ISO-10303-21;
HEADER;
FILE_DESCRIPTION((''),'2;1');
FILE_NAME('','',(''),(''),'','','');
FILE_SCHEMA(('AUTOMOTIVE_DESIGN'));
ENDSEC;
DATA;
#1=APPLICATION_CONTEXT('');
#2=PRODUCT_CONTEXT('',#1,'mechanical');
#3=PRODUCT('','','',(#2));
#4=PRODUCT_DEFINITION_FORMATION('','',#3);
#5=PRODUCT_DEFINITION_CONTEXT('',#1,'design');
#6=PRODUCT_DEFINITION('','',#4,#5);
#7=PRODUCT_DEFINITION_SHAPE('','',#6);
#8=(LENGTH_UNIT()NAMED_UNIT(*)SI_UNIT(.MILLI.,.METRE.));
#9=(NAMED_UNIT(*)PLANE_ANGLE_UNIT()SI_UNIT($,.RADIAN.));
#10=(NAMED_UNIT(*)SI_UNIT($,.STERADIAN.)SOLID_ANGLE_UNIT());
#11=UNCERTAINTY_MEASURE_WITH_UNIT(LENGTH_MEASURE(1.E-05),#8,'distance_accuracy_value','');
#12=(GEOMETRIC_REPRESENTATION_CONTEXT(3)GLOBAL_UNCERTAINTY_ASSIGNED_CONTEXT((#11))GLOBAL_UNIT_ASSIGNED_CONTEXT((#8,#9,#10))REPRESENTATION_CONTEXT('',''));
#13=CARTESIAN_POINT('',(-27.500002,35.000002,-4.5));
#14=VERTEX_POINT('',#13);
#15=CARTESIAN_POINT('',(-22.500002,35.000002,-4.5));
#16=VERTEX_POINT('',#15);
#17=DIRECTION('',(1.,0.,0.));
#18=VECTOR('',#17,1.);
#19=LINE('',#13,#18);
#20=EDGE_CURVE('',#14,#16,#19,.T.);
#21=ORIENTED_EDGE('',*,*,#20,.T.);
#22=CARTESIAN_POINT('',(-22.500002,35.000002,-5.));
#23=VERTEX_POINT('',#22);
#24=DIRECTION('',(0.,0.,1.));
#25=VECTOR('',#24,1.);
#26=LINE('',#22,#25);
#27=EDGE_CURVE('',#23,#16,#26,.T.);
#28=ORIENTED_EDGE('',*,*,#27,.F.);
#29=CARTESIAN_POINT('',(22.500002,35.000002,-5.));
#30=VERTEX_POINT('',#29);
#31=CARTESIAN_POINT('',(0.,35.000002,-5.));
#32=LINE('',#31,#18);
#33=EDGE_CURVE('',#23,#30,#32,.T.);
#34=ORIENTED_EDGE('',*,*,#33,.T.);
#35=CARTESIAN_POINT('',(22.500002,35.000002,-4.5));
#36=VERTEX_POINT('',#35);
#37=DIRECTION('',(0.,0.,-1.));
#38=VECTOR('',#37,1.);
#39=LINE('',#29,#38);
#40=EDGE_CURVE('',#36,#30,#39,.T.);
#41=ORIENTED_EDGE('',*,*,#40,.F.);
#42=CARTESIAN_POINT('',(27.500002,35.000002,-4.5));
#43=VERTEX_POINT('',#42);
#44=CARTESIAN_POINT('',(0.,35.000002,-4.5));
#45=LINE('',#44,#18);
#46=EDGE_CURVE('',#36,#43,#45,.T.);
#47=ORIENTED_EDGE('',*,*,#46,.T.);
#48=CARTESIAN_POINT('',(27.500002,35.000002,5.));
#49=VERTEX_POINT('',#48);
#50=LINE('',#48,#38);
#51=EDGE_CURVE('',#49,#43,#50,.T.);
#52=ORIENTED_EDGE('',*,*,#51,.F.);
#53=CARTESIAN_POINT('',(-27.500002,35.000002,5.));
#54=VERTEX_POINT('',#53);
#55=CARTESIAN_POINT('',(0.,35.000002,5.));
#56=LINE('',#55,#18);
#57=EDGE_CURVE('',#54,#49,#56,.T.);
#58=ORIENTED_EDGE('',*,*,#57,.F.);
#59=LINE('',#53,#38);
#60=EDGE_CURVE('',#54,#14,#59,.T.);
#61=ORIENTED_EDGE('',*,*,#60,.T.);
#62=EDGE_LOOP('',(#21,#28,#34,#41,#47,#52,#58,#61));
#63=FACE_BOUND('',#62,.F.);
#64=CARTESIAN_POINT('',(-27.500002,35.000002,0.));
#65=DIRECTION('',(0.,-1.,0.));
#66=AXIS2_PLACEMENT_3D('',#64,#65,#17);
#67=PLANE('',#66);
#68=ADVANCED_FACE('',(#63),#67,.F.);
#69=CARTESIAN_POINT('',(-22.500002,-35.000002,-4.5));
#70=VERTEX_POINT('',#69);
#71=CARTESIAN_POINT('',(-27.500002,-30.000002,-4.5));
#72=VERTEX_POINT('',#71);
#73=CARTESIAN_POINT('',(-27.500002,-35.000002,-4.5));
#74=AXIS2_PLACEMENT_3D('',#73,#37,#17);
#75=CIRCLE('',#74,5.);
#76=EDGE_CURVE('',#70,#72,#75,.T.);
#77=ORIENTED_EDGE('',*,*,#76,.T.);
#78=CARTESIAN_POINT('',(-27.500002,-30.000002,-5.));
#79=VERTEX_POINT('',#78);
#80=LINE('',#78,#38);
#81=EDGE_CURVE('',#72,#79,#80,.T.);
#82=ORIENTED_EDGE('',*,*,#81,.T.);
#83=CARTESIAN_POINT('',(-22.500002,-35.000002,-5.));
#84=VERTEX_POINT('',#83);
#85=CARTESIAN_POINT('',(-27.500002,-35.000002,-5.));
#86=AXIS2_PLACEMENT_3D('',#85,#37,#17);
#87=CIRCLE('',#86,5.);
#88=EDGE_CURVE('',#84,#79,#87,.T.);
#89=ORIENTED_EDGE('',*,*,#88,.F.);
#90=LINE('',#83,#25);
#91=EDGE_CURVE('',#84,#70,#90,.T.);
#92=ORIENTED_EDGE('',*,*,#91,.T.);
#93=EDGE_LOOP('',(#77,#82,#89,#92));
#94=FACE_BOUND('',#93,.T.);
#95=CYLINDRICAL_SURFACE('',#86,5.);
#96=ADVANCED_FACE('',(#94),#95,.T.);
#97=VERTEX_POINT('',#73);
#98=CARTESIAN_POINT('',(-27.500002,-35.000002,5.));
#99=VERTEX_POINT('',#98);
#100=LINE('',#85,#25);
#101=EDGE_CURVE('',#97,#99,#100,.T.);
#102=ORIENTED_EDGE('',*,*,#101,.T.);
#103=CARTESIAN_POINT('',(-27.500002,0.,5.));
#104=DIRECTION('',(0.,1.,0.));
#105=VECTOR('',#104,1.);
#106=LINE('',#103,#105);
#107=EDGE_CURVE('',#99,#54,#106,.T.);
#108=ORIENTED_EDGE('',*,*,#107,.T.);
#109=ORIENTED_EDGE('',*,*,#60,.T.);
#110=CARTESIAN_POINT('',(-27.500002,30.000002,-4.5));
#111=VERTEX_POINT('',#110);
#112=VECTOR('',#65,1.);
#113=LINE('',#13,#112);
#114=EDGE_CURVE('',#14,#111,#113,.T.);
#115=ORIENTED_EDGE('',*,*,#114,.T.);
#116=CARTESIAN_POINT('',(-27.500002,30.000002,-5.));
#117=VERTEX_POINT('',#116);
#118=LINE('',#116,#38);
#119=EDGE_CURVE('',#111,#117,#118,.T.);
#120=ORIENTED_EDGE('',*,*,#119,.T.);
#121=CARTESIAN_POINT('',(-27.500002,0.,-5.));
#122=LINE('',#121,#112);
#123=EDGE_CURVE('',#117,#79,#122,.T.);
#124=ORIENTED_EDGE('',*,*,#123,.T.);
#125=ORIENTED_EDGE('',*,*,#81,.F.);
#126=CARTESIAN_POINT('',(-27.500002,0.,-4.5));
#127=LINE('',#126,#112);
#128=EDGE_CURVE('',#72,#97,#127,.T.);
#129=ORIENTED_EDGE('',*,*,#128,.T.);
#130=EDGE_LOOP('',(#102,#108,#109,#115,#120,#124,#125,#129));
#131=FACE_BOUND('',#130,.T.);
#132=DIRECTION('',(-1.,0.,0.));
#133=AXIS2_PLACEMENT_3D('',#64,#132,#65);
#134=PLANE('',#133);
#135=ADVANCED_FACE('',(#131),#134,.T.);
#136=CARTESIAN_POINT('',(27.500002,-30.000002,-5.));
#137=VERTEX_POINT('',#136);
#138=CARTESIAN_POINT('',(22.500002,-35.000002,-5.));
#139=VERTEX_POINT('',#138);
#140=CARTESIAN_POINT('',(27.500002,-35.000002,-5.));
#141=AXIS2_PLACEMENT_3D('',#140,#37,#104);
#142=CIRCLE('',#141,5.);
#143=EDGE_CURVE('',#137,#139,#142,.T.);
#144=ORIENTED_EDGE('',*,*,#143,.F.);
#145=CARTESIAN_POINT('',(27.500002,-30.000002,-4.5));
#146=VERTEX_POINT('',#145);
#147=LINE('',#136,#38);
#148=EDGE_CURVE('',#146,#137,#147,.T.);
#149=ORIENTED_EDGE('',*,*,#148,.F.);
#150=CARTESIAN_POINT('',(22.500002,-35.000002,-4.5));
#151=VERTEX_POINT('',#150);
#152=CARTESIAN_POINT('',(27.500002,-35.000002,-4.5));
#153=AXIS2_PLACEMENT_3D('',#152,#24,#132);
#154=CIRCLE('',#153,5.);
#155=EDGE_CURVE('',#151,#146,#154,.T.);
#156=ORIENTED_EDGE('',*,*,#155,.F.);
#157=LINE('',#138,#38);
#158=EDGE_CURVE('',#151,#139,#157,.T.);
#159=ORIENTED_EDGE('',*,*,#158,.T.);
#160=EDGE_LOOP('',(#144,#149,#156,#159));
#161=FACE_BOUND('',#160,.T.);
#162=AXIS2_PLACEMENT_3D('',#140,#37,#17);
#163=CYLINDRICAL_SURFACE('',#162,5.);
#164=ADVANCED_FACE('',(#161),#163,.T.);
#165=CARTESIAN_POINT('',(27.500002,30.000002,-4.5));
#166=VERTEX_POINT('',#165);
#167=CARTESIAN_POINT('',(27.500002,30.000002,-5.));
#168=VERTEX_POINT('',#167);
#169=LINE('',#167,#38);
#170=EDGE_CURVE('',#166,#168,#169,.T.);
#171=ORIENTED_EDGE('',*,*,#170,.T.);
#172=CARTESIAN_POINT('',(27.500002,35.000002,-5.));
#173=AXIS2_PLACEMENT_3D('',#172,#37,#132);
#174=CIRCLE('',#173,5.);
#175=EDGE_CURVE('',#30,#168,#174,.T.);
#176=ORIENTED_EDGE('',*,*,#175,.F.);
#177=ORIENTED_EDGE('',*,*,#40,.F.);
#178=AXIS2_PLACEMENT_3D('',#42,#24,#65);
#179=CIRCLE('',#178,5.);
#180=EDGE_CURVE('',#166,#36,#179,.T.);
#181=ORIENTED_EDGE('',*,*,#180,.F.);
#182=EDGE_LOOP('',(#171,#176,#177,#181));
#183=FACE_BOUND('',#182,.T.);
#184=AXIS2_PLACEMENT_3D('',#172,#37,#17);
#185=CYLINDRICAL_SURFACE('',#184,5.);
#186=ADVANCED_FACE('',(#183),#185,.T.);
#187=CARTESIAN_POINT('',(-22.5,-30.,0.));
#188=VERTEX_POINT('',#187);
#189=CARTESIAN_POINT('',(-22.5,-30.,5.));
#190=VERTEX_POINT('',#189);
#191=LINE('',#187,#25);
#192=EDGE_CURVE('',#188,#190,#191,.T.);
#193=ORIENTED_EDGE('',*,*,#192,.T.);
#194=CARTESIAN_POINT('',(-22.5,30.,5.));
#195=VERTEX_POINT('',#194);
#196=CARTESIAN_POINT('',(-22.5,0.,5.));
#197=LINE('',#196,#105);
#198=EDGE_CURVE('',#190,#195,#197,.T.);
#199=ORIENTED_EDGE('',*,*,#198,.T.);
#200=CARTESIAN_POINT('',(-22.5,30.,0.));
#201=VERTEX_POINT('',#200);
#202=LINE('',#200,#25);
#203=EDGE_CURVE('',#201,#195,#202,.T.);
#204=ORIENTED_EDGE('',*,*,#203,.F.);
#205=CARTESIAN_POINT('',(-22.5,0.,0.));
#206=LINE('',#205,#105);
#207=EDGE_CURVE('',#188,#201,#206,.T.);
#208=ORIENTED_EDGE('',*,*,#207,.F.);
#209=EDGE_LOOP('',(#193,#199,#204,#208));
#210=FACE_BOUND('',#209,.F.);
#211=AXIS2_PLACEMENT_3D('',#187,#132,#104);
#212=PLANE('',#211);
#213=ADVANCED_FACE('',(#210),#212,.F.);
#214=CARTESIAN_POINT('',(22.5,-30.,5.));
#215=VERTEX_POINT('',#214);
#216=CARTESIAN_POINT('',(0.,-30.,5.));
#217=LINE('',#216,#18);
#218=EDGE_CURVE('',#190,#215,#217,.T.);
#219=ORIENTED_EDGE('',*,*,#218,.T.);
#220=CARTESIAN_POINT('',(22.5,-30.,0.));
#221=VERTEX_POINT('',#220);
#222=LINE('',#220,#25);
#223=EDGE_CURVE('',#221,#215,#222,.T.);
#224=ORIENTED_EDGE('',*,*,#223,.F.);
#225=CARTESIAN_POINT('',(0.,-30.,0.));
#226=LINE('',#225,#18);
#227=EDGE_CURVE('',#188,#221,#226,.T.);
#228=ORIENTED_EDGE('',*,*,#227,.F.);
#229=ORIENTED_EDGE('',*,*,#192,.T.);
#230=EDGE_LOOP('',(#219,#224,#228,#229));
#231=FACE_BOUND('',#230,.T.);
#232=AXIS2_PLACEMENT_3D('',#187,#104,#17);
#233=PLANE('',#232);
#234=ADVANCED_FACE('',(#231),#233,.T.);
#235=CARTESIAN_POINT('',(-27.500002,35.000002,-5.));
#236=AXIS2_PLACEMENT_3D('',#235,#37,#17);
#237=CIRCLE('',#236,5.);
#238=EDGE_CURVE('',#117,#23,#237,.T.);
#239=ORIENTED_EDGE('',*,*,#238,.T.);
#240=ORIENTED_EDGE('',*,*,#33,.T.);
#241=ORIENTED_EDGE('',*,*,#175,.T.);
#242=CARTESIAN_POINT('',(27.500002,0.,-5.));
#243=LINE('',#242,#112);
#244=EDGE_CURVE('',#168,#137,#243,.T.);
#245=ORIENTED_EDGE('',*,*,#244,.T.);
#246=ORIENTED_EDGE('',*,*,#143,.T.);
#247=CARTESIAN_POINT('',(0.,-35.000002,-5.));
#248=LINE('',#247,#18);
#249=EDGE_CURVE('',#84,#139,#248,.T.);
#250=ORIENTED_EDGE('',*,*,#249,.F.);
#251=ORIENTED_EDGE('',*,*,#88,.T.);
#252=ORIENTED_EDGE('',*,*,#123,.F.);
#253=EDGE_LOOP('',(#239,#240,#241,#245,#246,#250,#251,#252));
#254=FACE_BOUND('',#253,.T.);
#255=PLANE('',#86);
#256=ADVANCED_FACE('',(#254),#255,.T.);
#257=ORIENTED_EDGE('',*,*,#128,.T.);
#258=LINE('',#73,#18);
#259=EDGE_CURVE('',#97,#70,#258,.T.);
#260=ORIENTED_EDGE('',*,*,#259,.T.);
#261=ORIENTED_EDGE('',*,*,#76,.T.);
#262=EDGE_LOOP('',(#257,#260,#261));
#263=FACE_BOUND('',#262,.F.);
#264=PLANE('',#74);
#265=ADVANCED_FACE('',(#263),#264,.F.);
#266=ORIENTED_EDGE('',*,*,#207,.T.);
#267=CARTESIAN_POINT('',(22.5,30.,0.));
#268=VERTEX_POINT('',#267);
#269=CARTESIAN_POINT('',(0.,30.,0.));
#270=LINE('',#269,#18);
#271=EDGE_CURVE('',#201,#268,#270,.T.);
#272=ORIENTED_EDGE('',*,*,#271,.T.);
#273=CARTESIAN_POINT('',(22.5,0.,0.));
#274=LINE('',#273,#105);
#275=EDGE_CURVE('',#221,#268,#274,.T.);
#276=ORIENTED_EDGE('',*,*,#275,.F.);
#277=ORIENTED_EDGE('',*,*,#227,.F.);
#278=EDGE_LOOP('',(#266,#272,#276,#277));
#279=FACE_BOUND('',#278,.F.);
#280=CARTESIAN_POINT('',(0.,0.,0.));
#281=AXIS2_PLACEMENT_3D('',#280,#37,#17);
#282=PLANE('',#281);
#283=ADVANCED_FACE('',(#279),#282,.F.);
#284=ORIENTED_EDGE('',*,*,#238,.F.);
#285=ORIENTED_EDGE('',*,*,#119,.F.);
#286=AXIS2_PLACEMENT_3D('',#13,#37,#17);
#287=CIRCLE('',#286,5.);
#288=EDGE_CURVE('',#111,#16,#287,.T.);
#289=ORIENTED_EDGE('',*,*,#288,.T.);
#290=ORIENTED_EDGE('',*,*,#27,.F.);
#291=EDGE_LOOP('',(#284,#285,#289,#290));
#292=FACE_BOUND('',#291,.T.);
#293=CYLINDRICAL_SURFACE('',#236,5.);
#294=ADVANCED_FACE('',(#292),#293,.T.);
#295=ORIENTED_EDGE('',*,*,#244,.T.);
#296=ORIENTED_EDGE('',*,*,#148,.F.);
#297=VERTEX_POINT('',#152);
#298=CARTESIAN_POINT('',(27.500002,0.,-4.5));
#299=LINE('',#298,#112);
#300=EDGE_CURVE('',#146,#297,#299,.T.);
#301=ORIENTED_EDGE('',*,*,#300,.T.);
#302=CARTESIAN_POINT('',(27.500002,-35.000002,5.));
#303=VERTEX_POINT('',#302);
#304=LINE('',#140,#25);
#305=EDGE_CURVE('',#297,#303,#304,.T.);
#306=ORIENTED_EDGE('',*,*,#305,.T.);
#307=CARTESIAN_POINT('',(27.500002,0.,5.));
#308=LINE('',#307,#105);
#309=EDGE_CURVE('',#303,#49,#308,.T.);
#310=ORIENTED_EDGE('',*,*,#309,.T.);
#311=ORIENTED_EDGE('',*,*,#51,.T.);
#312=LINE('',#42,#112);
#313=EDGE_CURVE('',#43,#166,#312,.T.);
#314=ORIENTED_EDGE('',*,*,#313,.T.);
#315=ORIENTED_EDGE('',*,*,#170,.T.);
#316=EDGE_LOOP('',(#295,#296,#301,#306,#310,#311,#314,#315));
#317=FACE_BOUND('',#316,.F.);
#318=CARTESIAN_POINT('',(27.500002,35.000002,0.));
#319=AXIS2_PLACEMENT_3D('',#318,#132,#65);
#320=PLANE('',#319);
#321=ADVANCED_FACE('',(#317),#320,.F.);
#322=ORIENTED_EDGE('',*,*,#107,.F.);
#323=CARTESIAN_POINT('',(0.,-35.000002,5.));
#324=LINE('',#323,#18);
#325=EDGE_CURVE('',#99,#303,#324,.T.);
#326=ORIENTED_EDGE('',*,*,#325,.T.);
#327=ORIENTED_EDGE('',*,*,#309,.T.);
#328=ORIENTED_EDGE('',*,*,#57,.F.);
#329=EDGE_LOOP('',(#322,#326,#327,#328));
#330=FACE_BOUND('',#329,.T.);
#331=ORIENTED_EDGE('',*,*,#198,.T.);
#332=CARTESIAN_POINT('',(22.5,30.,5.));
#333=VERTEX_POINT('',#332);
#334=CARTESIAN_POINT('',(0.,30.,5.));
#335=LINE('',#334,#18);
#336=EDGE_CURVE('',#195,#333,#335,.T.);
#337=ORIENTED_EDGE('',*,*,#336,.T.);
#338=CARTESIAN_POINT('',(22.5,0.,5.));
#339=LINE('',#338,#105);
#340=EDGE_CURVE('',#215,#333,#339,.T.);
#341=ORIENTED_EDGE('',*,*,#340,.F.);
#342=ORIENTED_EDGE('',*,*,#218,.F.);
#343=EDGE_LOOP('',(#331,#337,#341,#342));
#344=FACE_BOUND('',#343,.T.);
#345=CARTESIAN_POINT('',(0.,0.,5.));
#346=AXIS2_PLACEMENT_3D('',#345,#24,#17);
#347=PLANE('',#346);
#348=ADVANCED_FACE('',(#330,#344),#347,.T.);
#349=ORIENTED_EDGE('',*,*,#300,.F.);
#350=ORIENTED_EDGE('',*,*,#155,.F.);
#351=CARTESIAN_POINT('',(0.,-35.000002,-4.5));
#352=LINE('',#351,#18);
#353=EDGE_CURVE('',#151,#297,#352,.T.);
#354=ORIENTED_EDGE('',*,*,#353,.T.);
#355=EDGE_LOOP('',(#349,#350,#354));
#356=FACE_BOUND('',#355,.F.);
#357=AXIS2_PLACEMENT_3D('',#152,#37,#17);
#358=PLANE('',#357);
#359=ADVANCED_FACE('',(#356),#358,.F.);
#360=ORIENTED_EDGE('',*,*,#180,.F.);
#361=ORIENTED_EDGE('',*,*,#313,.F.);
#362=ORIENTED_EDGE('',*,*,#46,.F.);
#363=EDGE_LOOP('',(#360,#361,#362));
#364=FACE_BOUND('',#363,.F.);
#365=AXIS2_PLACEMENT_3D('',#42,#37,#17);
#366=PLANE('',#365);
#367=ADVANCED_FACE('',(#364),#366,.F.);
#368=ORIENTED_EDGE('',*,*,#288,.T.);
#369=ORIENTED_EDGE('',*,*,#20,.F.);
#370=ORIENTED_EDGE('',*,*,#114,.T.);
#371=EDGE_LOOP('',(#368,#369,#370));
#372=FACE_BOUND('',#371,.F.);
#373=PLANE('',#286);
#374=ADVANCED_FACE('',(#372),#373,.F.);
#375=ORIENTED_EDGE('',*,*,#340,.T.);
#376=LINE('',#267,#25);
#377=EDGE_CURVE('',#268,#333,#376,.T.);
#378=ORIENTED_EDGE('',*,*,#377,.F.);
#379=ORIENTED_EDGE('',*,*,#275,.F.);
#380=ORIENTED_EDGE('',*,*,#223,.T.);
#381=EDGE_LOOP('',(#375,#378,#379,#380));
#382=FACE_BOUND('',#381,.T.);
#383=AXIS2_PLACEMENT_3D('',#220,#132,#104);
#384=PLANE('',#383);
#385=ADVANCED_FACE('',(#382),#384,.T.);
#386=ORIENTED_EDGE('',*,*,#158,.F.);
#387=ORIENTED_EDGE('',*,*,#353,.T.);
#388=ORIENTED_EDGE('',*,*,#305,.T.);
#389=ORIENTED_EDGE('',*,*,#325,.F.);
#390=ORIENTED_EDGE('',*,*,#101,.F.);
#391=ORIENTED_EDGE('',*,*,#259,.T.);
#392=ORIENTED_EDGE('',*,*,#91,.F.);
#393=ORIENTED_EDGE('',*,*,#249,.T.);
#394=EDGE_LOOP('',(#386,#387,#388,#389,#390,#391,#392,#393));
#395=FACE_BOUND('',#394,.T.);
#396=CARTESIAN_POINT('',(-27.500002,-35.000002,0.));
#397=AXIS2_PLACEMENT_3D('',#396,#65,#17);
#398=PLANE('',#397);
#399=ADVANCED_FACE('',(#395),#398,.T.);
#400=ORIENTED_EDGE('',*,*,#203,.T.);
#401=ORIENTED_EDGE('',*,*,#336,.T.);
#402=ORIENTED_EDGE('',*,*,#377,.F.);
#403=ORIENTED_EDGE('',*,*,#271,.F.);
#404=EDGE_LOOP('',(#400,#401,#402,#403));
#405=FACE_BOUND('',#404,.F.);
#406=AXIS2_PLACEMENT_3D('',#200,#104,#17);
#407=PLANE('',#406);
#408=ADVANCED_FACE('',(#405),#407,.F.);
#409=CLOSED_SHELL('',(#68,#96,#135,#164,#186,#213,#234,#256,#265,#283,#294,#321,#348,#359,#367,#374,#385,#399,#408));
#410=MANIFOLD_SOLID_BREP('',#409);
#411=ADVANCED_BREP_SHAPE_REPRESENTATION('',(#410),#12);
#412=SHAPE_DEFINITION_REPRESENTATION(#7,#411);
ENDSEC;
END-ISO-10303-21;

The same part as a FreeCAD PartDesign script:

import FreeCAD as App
import Part
import Sketcher

V = App.Vector
Q = App.Units.Quantity

doc = App.newDocument("Part")
body = doc.addObject("PartDesign::Body", "Body")

sketch1 = doc.addObject("Sketcher::SketchObject", "Sketch")
body.addObject(sketch1)
sketch1.AttachmentSupport = (doc.XY_Plane, [""])
sketch1.MapMode = "FlatFace"
sketch1.addGeometry(Part.LineSegment(V(-27.500002, 35.000002, 0), V(-27.500002, -35.000002, 0)), False)
sketch1.addGeometry(Part.LineSegment(V(-27.500002, -35.000002, 0), V(27.500002, -35.000002, 0)), False)
sketch1.addGeometry(Part.LineSegment(V(27.500002, -35.000002, 0), V(27.500002, 35.000002, 0)), False)
sketch1.addGeometry(Part.LineSegment(V(27.500002, 35.000002, 0), V(-27.500002, 35.000002, 0)), False)
sketch1.addGeometry(Part.LineSegment(V(22.5, -30, 0), V(-22.5, -30, 0)), False)
sketch1.addGeometry(Part.LineSegment(V(-22.5, -30, 0), V(-22.5, 30, 0)), False)
sketch1.addGeometry(Part.LineSegment(V(-22.5, 30, 0), V(22.5, 30, 0)), False)
sketch1.addGeometry(Part.LineSegment(V(22.5, 30, 0), V(22.5, -30, 0)), False)
sketch1.addConstraint(Sketcher.Constraint("Coincident", 0, 2, 1, 1))
sketch1.addConstraint(Sketcher.Constraint("Coincident", 1, 2, 2, 1))
sketch1.addConstraint(Sketcher.Constraint("Coincident", 2, 2, 3, 1))
sketch1.addConstraint(Sketcher.Constraint("Coincident", 3, 2, 0, 1))
sketch1.addConstraint(Sketcher.Constraint("Coincident", 4, 2, 5, 1))
sketch1.addConstraint(Sketcher.Constraint("Coincident", 5, 2, 6, 1))
sketch1.addConstraint(Sketcher.Constraint("Coincident", 6, 2, 7, 1))
sketch1.addConstraint(Sketcher.Constraint("Coincident", 7, 2, 4, 1))
sketch1.addConstraint(Sketcher.Constraint("Vertical", 0))
sketch1.addConstraint(Sketcher.Constraint("Horizontal", 1))
sketch1.addConstraint(Sketcher.Constraint("Vertical", 2))
sketch1.addConstraint(Sketcher.Constraint("Horizontal", 3))
sketch1.addConstraint(Sketcher.Constraint("Horizontal", 4))
sketch1.addConstraint(Sketcher.Constraint("Vertical", 5))
sketch1.addConstraint(Sketcher.Constraint("Horizontal", 6))
sketch1.addConstraint(Sketcher.Constraint("Vertical", 7))
sketch1.addConstraint(Sketcher.Constraint("Symmetric", 0, 2, 2, 2, -1, 1))
sketch1.addConstraint(Sketcher.Constraint("Symmetric", 4, 2, 6, 2, -1, 1))
sketch1.addConstraint(Sketcher.Constraint("DistanceX", 4, 2, 4, 1, Q("45 mm")))
sketch1.addConstraint(Sketcher.Constraint("DistanceY", 5, 1, 5, 2, Q("60 mm")))
sketch1.addConstraint(Sketcher.Constraint("DistanceX", 0, 2, 4, 2, Q("5.000002 mm")))
sketch1.addConstraint(Sketcher.Constraint("DistanceY", 4, 2, 3, 2, Q("65.000002 mm")))
pad1 = doc.addObject("PartDesign::Pad", "Pad")
body.addObject(pad1)
pad1.Profile = sketch1
pad1.Length = 5

sketch2 = doc.addObject("Sketcher::SketchObject", "Sketch001")
body.addObject(sketch2)
sketch2.AttachmentSupport = (doc.XY_Plane, [""])
sketch2.MapMode = "FlatFace"
sketch2.addGeometry(Part.LineSegment(V(-27.500002, -35.000002, 0), V(-27.500002, 35.000002, 0)), False)
sketch2.addGeometry(Part.LineSegment(V(-27.500002, 35.000002, 0), V(27.500002, 35.000002, 0)), False)
sketch2.addGeometry(Part.LineSegment(V(27.500002, 35.000002, 0), V(27.500002, -35.000002, 0)), False)
sketch2.addGeometry(Part.LineSegment(V(27.500002, -35.000002, 0), V(-27.500002, -35.000002, 0)), False)
sketch2.addConstraint(Sketcher.Constraint("Coincident", 0, 2, 1, 1))
sketch2.addConstraint(Sketcher.Constraint("Coincident", 1, 2, 2, 1))
sketch2.addConstraint(Sketcher.Constraint("Coincident", 2, 2, 3, 1))
sketch2.addConstraint(Sketcher.Constraint("Coincident", 3, 2, 0, 1))
sketch2.addConstraint(Sketcher.Constraint("Vertical", 0))
sketch2.addConstraint(Sketcher.Constraint("Horizontal", 1))
sketch2.addConstraint(Sketcher.Constraint("Vertical", 2))
sketch2.addConstraint(Sketcher.Constraint("Horizontal", 3))
sketch2.addConstraint(Sketcher.Constraint("Symmetric", 0, 2, 2, 2, -1, 1))
sketch2.addConstraint(Sketcher.Constraint("DistanceX", 0, 2, -1, 1, Q("27.500002 mm")))
sketch2.addConstraint(Sketcher.Constraint("DistanceY", 0, 1, 0, 2, Q("70.000004 mm")))
pad2 = doc.addObject("PartDesign::Pad", "Pad001")
body.addObject(pad2)
pad2.Profile = sketch2
pad2.Length = 5
pad2.Reversed = True

sketch3 = doc.addObject("Sketcher::SketchObject", "Sketch002")
body.addObject(sketch3)
sketch3.AttachmentSupport = (doc.XY_Plane, [""])
sketch3.MapMode = "FlatFace"
sketch3.AttachmentOffset = App.Placement(V(0, 0, -5), App.Rotation())
sketch3.addGeometry(Part.Circle(V(-27.500002, -35.000002, 0), V(0, 0, 1), 5), False)
sketch3.addGeometry(Part.Circle(V(27.500002, -35.000002, 0), V(0, 0, 1), 5), False)
sketch3.addGeometry(Part.Circle(V(27.500002, 35.000002, 0), V(0, 0, 1), 5), False)
sketch3.addGeometry(Part.Circle(V(-27.500002, 35.000002, 0), V(0, 0, 1), 5), False)
sketch3.addConstraint(Sketcher.Constraint("Equal", 0, 1))
sketch3.addConstraint(Sketcher.Constraint("Equal", 1, 2))
sketch3.addConstraint(Sketcher.Constraint("Equal", 2, 3))
sketch3.addConstraint(Sketcher.Constraint("Symmetric", 0, 3, 2, 3, -1, 1))
sketch3.addConstraint(Sketcher.Constraint("Symmetric", 1, 3, 3, 3, -1, 1))
sketch3.addConstraint(Sketcher.Constraint("Symmetric", 0, 3, 1, 3, -2))
sketch3.addConstraint(Sketcher.Constraint("Diameter", 0, Q("10 mm")))
sketch3.addConstraint(Sketcher.Constraint("DistanceX", 0, 3, -1, 1, Q("27.500002 mm")))
sketch3.addConstraint(Sketcher.Constraint("DistanceY", 0, 3, -1, 1, Q("35.000002 mm")))
pad3 = doc.addObject("PartDesign::Pad", "Pad002")
body.addObject(pad3)
pad3.Profile = sketch3
pad3.Length = 0.5

doc.recompute()
